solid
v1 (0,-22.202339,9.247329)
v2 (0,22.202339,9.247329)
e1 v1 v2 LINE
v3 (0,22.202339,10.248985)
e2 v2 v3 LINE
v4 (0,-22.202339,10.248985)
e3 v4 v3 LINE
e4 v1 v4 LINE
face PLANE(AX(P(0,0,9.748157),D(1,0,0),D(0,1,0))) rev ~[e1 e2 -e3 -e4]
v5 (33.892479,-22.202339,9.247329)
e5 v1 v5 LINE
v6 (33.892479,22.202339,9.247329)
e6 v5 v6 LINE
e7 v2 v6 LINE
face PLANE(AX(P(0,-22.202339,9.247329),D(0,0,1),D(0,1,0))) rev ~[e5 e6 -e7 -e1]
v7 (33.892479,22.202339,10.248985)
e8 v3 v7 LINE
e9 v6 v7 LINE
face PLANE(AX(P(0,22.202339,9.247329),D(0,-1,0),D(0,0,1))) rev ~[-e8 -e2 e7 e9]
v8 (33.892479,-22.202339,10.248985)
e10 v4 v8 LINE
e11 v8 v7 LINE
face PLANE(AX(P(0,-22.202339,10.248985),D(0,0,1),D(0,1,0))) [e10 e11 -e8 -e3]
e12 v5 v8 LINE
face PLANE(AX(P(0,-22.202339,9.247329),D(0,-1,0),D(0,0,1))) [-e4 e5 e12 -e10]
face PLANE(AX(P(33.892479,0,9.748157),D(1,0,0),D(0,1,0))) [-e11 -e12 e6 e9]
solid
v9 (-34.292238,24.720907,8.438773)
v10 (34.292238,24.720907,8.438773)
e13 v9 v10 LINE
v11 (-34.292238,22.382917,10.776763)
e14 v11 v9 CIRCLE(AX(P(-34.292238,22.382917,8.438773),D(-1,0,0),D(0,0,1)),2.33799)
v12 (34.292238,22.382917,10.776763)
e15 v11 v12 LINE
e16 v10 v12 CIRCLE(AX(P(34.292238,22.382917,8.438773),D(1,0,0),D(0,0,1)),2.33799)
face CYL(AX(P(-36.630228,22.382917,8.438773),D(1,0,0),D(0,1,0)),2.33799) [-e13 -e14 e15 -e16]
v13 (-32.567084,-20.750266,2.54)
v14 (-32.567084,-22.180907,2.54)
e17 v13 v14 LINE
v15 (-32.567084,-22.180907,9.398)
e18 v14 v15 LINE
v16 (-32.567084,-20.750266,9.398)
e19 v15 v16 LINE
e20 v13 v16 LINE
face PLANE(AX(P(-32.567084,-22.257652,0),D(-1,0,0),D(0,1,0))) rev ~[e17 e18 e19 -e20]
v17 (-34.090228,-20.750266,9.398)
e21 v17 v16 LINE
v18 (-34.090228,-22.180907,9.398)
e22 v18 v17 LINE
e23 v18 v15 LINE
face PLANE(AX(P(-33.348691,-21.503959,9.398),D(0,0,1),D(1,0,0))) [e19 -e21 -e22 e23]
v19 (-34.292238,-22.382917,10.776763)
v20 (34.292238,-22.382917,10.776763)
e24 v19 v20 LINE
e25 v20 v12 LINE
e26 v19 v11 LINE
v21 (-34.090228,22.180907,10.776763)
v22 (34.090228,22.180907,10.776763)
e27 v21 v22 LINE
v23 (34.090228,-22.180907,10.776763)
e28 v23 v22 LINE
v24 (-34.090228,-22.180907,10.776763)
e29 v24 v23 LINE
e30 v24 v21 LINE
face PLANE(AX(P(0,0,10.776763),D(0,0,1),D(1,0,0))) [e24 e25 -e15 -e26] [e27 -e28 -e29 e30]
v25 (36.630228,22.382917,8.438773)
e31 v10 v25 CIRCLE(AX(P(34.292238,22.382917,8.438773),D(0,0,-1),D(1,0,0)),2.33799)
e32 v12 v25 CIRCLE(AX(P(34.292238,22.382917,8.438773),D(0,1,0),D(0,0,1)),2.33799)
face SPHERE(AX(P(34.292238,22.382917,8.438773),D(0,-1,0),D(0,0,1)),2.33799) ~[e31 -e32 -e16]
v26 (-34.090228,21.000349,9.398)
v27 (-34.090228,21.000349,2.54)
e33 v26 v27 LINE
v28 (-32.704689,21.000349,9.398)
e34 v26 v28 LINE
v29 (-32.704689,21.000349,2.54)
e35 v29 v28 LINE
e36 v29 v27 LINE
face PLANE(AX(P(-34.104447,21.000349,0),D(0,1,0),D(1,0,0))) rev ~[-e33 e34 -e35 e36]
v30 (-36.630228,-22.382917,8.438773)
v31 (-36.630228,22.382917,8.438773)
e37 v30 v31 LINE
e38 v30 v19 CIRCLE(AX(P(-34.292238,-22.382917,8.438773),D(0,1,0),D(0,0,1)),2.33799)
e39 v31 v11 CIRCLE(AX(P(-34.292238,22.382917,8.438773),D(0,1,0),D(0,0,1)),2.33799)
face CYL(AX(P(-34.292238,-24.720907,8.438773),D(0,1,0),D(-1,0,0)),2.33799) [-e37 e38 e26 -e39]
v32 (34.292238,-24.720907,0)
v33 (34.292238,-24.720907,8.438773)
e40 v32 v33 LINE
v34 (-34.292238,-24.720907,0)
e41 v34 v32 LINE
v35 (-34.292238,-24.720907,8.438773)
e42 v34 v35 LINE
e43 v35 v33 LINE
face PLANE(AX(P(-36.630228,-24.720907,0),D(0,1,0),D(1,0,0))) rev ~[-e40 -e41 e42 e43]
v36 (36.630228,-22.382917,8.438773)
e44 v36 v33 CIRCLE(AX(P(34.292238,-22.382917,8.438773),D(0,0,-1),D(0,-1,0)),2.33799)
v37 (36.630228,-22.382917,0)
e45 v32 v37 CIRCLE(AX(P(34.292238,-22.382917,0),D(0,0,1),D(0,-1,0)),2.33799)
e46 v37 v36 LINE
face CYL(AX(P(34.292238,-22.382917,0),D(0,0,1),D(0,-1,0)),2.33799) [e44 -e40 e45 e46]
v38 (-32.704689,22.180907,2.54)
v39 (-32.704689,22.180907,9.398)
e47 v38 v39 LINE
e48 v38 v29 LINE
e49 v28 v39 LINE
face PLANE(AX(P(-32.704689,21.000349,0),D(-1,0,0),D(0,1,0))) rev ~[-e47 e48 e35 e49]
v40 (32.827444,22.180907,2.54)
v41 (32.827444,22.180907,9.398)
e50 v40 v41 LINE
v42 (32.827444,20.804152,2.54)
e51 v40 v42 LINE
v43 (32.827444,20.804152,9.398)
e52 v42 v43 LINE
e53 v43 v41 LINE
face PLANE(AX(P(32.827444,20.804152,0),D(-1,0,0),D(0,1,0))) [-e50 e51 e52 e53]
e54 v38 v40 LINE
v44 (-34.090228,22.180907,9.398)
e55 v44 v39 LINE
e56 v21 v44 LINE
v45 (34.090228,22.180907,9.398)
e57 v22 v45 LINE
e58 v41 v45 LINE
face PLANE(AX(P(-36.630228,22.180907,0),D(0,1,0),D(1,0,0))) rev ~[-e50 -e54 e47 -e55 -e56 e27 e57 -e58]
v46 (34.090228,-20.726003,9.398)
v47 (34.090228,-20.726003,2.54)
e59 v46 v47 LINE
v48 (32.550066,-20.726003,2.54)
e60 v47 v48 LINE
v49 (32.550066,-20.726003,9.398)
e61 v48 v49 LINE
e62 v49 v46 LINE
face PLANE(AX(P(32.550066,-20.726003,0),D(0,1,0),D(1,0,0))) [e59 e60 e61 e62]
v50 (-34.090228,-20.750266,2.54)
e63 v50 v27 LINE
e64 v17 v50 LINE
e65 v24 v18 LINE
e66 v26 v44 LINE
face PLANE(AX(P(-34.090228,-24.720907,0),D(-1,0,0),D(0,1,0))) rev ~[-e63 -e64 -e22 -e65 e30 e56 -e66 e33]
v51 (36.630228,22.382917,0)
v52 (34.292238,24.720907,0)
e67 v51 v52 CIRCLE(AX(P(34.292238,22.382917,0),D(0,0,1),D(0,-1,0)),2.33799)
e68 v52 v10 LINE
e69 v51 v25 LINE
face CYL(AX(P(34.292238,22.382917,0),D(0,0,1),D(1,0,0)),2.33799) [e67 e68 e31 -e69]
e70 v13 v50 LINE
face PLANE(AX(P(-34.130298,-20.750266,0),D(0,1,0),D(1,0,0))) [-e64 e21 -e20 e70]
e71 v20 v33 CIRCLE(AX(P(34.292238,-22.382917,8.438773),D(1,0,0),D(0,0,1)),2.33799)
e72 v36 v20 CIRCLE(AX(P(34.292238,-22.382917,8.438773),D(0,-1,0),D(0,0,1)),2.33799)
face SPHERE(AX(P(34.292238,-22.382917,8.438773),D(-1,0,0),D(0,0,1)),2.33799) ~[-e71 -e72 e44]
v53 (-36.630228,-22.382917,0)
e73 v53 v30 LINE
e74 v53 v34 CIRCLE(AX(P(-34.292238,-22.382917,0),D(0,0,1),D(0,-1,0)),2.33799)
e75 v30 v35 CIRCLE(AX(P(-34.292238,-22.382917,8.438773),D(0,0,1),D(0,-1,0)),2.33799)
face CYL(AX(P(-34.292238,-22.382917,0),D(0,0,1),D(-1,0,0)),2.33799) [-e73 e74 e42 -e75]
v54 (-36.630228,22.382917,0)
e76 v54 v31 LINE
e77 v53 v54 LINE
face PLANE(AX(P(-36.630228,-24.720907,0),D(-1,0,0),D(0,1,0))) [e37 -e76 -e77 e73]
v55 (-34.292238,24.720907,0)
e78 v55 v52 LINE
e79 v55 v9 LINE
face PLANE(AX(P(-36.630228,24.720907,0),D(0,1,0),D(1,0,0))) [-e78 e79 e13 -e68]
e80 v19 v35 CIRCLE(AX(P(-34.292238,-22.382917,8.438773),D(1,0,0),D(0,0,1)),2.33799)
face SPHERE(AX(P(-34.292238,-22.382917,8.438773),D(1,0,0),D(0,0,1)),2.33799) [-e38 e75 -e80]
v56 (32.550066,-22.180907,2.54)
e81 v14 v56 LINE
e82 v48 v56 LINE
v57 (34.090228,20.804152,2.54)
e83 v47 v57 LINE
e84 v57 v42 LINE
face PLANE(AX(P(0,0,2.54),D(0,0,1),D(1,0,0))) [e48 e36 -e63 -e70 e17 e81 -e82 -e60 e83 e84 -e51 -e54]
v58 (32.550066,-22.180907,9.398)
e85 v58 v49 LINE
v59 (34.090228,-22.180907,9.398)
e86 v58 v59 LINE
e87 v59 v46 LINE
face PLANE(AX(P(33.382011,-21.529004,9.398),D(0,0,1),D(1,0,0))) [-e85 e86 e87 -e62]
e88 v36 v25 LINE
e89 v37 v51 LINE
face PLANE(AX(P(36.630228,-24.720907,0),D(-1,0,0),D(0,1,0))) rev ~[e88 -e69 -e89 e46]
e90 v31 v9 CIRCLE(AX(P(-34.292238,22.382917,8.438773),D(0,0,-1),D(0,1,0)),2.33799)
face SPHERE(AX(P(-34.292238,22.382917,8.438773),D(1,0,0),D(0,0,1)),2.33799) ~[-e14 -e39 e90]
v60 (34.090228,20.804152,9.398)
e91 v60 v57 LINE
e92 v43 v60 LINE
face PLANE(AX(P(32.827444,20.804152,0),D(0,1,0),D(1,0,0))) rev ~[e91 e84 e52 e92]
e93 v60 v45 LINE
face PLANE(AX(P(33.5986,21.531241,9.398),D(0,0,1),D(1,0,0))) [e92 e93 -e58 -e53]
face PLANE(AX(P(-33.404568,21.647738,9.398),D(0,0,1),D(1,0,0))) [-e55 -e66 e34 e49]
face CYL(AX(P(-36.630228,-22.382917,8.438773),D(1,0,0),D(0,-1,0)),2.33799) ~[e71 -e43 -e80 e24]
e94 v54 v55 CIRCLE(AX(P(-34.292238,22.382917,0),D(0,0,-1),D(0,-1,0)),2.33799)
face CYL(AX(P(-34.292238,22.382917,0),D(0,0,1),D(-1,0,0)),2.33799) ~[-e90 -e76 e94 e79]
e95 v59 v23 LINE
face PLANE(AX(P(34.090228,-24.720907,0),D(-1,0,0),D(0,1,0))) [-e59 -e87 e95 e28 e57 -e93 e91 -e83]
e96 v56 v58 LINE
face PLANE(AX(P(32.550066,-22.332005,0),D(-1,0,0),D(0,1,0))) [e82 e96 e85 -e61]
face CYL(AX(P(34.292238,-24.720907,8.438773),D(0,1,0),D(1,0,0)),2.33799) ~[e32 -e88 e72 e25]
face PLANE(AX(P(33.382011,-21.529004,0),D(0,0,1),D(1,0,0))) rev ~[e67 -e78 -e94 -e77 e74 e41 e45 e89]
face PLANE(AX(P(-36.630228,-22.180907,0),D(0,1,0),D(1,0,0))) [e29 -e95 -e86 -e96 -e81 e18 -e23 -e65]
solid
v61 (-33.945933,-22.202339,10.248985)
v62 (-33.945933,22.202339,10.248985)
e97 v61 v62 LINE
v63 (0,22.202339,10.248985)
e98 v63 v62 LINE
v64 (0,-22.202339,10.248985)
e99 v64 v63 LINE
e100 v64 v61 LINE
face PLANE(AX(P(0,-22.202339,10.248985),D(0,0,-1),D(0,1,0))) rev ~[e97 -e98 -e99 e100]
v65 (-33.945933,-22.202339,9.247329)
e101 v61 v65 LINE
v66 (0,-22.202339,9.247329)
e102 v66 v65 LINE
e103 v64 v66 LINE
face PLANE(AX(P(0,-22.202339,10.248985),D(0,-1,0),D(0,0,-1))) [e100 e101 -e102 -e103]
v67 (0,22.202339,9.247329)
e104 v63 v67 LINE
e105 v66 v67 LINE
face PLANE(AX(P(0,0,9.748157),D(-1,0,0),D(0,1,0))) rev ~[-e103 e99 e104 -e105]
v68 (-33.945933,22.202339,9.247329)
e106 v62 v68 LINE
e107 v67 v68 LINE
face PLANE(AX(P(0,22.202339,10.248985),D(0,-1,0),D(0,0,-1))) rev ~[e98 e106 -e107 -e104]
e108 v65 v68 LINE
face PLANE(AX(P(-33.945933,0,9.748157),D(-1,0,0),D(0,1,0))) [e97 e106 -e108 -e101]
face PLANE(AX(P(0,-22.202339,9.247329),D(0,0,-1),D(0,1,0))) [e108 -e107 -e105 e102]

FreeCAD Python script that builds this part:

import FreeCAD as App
import Part
import Sketcher
from FreeCAD import Vector
Q = App.Units.Quantity


def edges_at(feature, points):
    """Names of the edges that pass closest to the given points."""
    edges = feature.Shape.Edges
    near = lambda p: min(range(len(edges)), key=lambda i: edges[i].distToShape(Part.Vertex(*p))[0])
    return sorted({f"Edge{near(p) + 1}" for p in points})


def faces_at(feature, points):
    """Names of the faces that lie closest to the given points."""
    faces = feature.Shape.Faces
    near = lambda p: min(range(len(faces)), key=lambda i: faces[i].distToShape(Part.Vertex(*p))[0])
    return sorted({f"Face{near(p) + 1}" for p in points})

doc = App.newDocument("Part")
params = doc.addObject("Spreadsheet::Sheet", "Params")
for row, (alias, value) in enumerate([
    ("pad1_length", "10.776763 mm"),
    ("thickness_wall", "0.1 in"),
    ("fillet_radius", "2.33799 mm"),
    ("pad2_length", "0.37 in"),
    ("pad3_length", "0.37 in"),
    ("pad4_length", "0.37 in"),
    ("pad5_length", "0.37 in"),
    ("pad6_length", "33.892479 mm"),
    ("pad7_length", "33.945933 mm"),
], start=1):
    params.set(f"A{row}", alias)
    params.set(f"B{row}", "=" + value)
    params.setAlias(f"B{row}", alias)

body = doc.addObject("PartDesign::Body", "Body")

# Sketch on XY plane
sketch1 = body.newObject("Sketcher::SketchObject", "Sketch")
sketch1.AttachmentSupport = (doc.getObject("XY_Plane"), [""])
sketch1.MapMode = "FlatFace"
sketch1.addGeometry([
    Part.LineSegment(Vector(-36.630228, 24.720907, 0), Vector(-36.630228, -24.720907, 0)),
    Part.LineSegment(Vector(-36.630228, -24.720907, 0), Vector(36.630228, -24.720907, 0)),
    Part.LineSegment(Vector(36.630228, -24.720907, 0), Vector(36.630228, 24.720907, 0)),
    Part.LineSegment(Vector(36.630228, 24.720907, 0), Vector(-36.630228, 24.720907, 0)),
], False)
sketch1.addConstraint([
    Sketcher.Constraint("Coincident", 0, 2, 1, 1),
    Sketcher.Constraint("Coincident", 1, 2, 2, 1),
    Sketcher.Constraint("Coincident", 2, 2, 3, 1),
    Sketcher.Constraint("Coincident", 3, 2, 0, 1),
    Sketcher.Constraint("Vertical", 0),
    Sketcher.Constraint("Horizontal", 1),
    Sketcher.Constraint("Vertical", 2),
    Sketcher.Constraint("Horizontal", 3),
    Sketcher.Constraint("Symmetric", 0, 2, 2, 2, -1, 1),
    Sketcher.Constraint("DistanceX", 1, 1, 1, 2, Q("73.260456 mm")),
    Sketcher.Constraint("DistanceY", 0, 2, 0, 1, Q("49.441814 mm")),
])
pad1 = body.newObject("PartDesign::Pad", "Pad")
pad1.Profile = sketch1
pad1.setExpression("Length", "Params.pad1_length")
doc.recompute()

thickness = body.newObject("PartDesign::Thickness", "Thickness")
thickness.Base = (pad1, faces_at(pad1, [(0, 0, 10.777)]))
thickness.setExpression("Value", "Params.thickness_wall")
thickness.Reversed = True
thickness.Join = "Arc"
doc.recompute()

fillet = body.newObject("PartDesign::Fillet", "Fillet")
fillet.Base = (thickness, edges_at(thickness, [
    (0, -24.721, 10.777),
    (36.63, 0, 10.777),
    (0, 24.721, 10.777),
    (-36.63, 0, 10.777),
    (-36.63, -24.721, 5.388),
    (36.63, -24.721, 5.388),
    (36.63, 24.721, 5.388),
    (-36.63, 24.721, 5.388),
]))
fillet.setExpression("Radius", "Params.fillet_radius")

# Sketch on XY plane
sketch2 = body.newObject("Sketcher::SketchObject", "Sketch001")
sketch2.AttachmentSupport = (doc.getObject("XY_Plane"), [""])
sketch2.MapMode = "FlatFace"
sketch2.addGeometry([
    Part.LineSegment(Vector(-34.104447, 22.295126, 0), Vector(-34.104447, 21.000349, 0)),
    Part.LineSegment(Vector(-34.104447, 21.000349, 0), Vector(-32.704689, 21.000349, 0)),
    Part.LineSegment(Vector(-32.704689, 21.000349, 0), Vector(-32.704689, 22.295126, 0)),
    Part.LineSegment(Vector(-32.704689, 22.295126, 0), Vector(-34.104447, 22.295126, 0)),
], False)
sketch2.addConstraint([
    Sketcher.Constraint("Coincident", 0, 2, 1, 1),
    Sketcher.Constraint("Coincident", 1, 2, 2, 1),
    Sketcher.Constraint("Coincident", 2, 2, 3, 1),
    Sketcher.Constraint("Coincident", 3, 2, 0, 1),
    Sketcher.Constraint("Vertical", 0),
    Sketcher.Constraint("Horizontal", 1),
    Sketcher.Constraint("Vertical", 2),
    Sketcher.Constraint("Horizontal", 3),
    Sketcher.Constraint("DistanceX", 1, 1, 1, 2, Q("1.399759 mm")),
    Sketcher.Constraint("DistanceY", 0, 2, 0, 1, Q("1.294777 mm")),
    Sketcher.Constraint("DistanceY", -1, 1, 0, 2, Q("21.000349 mm")),
    Sketcher.Constraint("DistanceX", 1, 2, -1, 1, Q("32.704689 mm")),
])
pad2 = body.newObject("PartDesign::Pad", "Pad001")
pad2.Profile = sketch2
pad2.setExpression("Length", "Params.pad2_length")

# Sketch on XY plane
sketch3 = body.newObject("Sketcher::SketchObject", "Sketch002")
sketch3.AttachmentSupport = (doc.getObject("XY_Plane"), [""])
sketch3.MapMode = "FlatFace"
sketch3.addGeometry([
    Part.LineSegment(Vector(-34.130298, -20.750266, 0), Vector(-34.130298, -22.257652, 0)),
    Part.LineSegment(Vector(-34.130298, -22.257652, 0), Vector(-32.567084, -22.257652, 0)),
    Part.LineSegment(Vector(-32.567084, -22.257652, 0), Vector(-32.567084, -20.750266, 0)),
    Part.LineSegment(Vector(-32.567084, -20.750266, 0), Vector(-34.130298, -20.750266, 0)),
], False)
sketch3.addConstraint([
    Sketcher.Constraint("Coincident", 0, 2, 1, 1),
    Sketcher.Constraint("Coincident", 1, 2, 2, 1),
    Sketcher.Constraint("Coincident", 2, 2, 3, 1),
    Sketcher.Constraint("Coincident", 3, 2, 0, 1),
    Sketcher.Constraint("Vertical", 0),
    Sketcher.Constraint("Horizontal", 1),
    Sketcher.Constraint("Vertical", 2),
    Sketcher.Constraint("Horizontal", 3),
    Sketcher.Constraint("DistanceX", 0, 2, -1, 1, Q("34.130298 mm")),
    Sketcher.Constraint("DistanceX", 1, 1, 1, 2, Q("1.563214 mm")),
    Sketcher.Constraint("DistanceY", 0, 2, 0, 1, Q("1.507386 mm")),
    Sketcher.Constraint("DistanceY", 0, 2, -1, 1, Q("22.257652 mm")),
])
pad3 = body.newObject("PartDesign::Pad", "Pad002")
pad3.Profile = sketch3
pad3.setExpression("Length", "Params.pad3_length")

# Sketch on XY plane
sketch4 = body.newObject("Sketcher::SketchObject", "Sketch003")
sketch4.AttachmentSupport = (doc.getObject("XY_Plane"), [""])
sketch4.MapMode = "FlatFace"
sketch4.addGeometry([
    Part.LineSegment(Vector(32.827444, 22.25833, 0), Vector(32.827444, 20.804152, 0)),
    Part.LineSegment(Vector(32.827444, 20.804152, 0), Vector(34.369756, 20.804152, 0)),
    Part.LineSegment(Vector(34.369756, 20.804152, 0), Vector(34.369756, 22.25833, 0)),
    Part.LineSegment(Vector(34.369756, 22.25833, 0), Vector(32.827444, 22.25833, 0)),
], False)
sketch4.addConstraint([
    Sketcher.Constraint("Coincident", 0, 2, 1, 1),
    Sketcher.Constraint("Coincident", 1, 2, 2, 1),
    Sketcher.Constraint("Coincident", 2, 2, 3, 1),
    Sketcher.Constraint("Coincident", 3, 2, 0, 1),
    Sketcher.Constraint("Vertical", 0),
    Sketcher.Constraint("Horizontal", 1),
    Sketcher.Constraint("Vertical", 2),
    Sketcher.Constraint("Horizontal", 3),
    Sketcher.Constraint("DistanceY", 0, 2, 0, 1, Q("1.454178 mm")),
    Sketcher.Constraint("DistanceX", 1, 1, 1, 2, Q("1.542312 mm")),
    Sketcher.Constraint("DistanceY", -1, 1, 0, 2, Q("20.804152 mm")),
    Sketcher.Constraint("DistanceX", -1, 1, 0, 2, Q("32.827444 mm")),
])
pad4 = body.newObject("PartDesign::Pad", "Pad003")
pad4.Profile = sketch4
pad4.setExpression("Length", "Params.pad4_length")

# Sketch on XY plane
sketch5 = body.newObject("Sketcher::SketchObject", "Sketch004")
sketch5.AttachmentSupport = (doc.getObject("XY_Plane"), [""])
sketch5.MapMode = "FlatFace"
sketch5.addGeometry([
    Part.LineSegment(Vector(32.550066, -20.726003, 0), Vector(32.550066, -22.332005, 0)),
    Part.LineSegment(Vector(32.550066, -22.332005, 0), Vector(34.213955, -22.332005, 0)),
    Part.LineSegment(Vector(34.213955, -22.332005, 0), Vector(34.213955, -20.726003, 0)),
    Part.LineSegment(Vector(34.213955, -20.726003, 0), Vector(32.550066, -20.726003, 0)),
], False)
sketch5.addConstraint([
    Sketcher.Constraint("Coincident", 0, 2, 1, 1),
    Sketcher.Constraint("Coincident", 1, 2, 2, 1),
    Sketcher.Constraint("Coincident", 2, 2, 3, 1),
    Sketcher.Constraint("Coincident", 3, 2, 0, 1),
    Sketcher.Constraint("Vertical", 0),
    Sketcher.Constraint("Horizontal", 1),
    Sketcher.Constraint("Vertical", 2),
    Sketcher.Constraint("Horizontal", 3),
    Sketcher.Constraint("DistanceX", 1, 1, 1, 2, Q("1.663889 mm")),
    Sketcher.Constraint("DistanceY", 0, 2, 0, 1, Q("1.606002 mm")),
    Sketcher.Constraint("DistanceX", -1, 1, 0, 2, Q("32.550066 mm")),
    Sketcher.Constraint("DistanceY", 0, 2, -1, 1, Q("22.332005 mm")),
])
pad5 = body.newObject("PartDesign::Pad", "Pad004")
pad5.Profile = sketch5
pad5.setExpression("Length", "Params.pad5_length")
body2 = doc.addObject("PartDesign::Body", "Body001")

# Sketch on YZ plane
sketch6 = body2.newObject("Sketcher::SketchObject", "Sketch005")
sketch6.AttachmentSupport = (doc.getObject("YZ_Plane001"), [""])
sketch6.MapMode = "FlatFace"
sketch6.addGeometry([
    Part.LineSegment(Vector(-22.202339, 10.248985, 0), Vector(-22.202339, 9.247329, 0)),
    Part.LineSegment(Vector(-22.202339, 9.247329, 0), Vector(22.202339, 9.247329, 0)),
    Part.LineSegment(Vector(22.202339, 9.247329, 0), Vector(22.202339, 10.248985, 0)),
    Part.LineSegment(Vector(22.202339, 10.248985, 0), Vector(-22.202339, 10.248985, 0)),
], False)
sketch6.addConstraint([
    Sketcher.Constraint("Coincident", 0, 2, 1, 1),
    Sketcher.Constraint("Coincident", 1, 2, 2, 1),
    Sketcher.Constraint("Coincident", 2, 2, 3, 1),
    Sketcher.Constraint("Coincident", 3, 2, 0, 1),
    Sketcher.Constraint("Vertical", 0),
    Sketcher.Constraint("Horizontal", 1),
    Sketcher.Constraint("Vertical", 2),
    Sketcher.Constraint("Horizontal", 3),
    Sketcher.Constraint("DistanceX", 1, 1, 1, 2, Q("44.404678 mm")),
    Sketcher.Constraint("DistanceY", 0, 2, 0, 1, Q("1.001656 mm")),
    Sketcher.Constraint("DistanceX", 0, 2, -1, 1, Q("22.202339 mm")),
    Sketcher.Constraint("DistanceY", -1, 1, 0, 2, Q("9.247329 mm")),
])
pad6 = body2.newObject("PartDesign::Pad", "Pad005")
pad6.Profile = sketch6
pad6.setExpression("Length", "Params.pad6_length")
body3 = doc.addObject("PartDesign::Body", "Body002")

# Sketch on YZ plane
sketch7 = body3.newObject("Sketcher::SketchObject", "Sketch006")
sketch7.AttachmentSupport = (doc.getObject("YZ_Plane002"), [""])
sketch7.MapMode = "FlatFace"
sketch7.addGeometry([
    Part.LineSegment(Vector(-22.202339, 9.247329, 0), Vector(-22.202339, 10.248985, 0)),
    Part.LineSegment(Vector(-22.202339, 10.248985, 0), Vector(22.202339, 10.248985, 0)),
    Part.LineSegment(Vector(22.202339, 10.248985, 0), Vector(22.202339, 9.247329, 0)),
    Part.LineSegment(Vector(22.202339, 9.247329, 0), Vector(-22.202339, 9.247329, 0)),
], False)
sketch7.addConstraint([
    Sketcher.Constraint("Coincident", 0, 2, 1, 1),
    Sketcher.Constraint("Coincident", 1, 2, 2, 1),
    Sketcher.Constraint("Coincident", 2, 2, 3, 1),
    Sketcher.Constraint("Coincident", 3, 2, 0, 1),
    Sketcher.Constraint("Vertical", 0),
    Sketcher.Constraint("Horizontal", 1),
    Sketcher.Constraint("Vertical", 2),
    Sketcher.Constraint("Horizontal", 3),
    Sketcher.Constraint("DistanceX", 1, 1, 1, 2, Q("44.404678 mm")),
    Sketcher.Constraint("DistanceY", 0, 1, 0, 2, Q("1.001656 mm")),
    Sketcher.Constraint("DistanceX", 0, 2, -1, 1, Q("22.202339 mm")),
    Sketcher.Constraint("DistanceY", -1, 1, 2, 2, Q("9.247329 mm")),
])
pad7 = body3.newObject("PartDesign::Pad", "Pad006")
pad7.Profile = sketch7
pad7.setExpression("Length", "Params.pad7_length")
pad7.Reversed = True

doc.recompute()
